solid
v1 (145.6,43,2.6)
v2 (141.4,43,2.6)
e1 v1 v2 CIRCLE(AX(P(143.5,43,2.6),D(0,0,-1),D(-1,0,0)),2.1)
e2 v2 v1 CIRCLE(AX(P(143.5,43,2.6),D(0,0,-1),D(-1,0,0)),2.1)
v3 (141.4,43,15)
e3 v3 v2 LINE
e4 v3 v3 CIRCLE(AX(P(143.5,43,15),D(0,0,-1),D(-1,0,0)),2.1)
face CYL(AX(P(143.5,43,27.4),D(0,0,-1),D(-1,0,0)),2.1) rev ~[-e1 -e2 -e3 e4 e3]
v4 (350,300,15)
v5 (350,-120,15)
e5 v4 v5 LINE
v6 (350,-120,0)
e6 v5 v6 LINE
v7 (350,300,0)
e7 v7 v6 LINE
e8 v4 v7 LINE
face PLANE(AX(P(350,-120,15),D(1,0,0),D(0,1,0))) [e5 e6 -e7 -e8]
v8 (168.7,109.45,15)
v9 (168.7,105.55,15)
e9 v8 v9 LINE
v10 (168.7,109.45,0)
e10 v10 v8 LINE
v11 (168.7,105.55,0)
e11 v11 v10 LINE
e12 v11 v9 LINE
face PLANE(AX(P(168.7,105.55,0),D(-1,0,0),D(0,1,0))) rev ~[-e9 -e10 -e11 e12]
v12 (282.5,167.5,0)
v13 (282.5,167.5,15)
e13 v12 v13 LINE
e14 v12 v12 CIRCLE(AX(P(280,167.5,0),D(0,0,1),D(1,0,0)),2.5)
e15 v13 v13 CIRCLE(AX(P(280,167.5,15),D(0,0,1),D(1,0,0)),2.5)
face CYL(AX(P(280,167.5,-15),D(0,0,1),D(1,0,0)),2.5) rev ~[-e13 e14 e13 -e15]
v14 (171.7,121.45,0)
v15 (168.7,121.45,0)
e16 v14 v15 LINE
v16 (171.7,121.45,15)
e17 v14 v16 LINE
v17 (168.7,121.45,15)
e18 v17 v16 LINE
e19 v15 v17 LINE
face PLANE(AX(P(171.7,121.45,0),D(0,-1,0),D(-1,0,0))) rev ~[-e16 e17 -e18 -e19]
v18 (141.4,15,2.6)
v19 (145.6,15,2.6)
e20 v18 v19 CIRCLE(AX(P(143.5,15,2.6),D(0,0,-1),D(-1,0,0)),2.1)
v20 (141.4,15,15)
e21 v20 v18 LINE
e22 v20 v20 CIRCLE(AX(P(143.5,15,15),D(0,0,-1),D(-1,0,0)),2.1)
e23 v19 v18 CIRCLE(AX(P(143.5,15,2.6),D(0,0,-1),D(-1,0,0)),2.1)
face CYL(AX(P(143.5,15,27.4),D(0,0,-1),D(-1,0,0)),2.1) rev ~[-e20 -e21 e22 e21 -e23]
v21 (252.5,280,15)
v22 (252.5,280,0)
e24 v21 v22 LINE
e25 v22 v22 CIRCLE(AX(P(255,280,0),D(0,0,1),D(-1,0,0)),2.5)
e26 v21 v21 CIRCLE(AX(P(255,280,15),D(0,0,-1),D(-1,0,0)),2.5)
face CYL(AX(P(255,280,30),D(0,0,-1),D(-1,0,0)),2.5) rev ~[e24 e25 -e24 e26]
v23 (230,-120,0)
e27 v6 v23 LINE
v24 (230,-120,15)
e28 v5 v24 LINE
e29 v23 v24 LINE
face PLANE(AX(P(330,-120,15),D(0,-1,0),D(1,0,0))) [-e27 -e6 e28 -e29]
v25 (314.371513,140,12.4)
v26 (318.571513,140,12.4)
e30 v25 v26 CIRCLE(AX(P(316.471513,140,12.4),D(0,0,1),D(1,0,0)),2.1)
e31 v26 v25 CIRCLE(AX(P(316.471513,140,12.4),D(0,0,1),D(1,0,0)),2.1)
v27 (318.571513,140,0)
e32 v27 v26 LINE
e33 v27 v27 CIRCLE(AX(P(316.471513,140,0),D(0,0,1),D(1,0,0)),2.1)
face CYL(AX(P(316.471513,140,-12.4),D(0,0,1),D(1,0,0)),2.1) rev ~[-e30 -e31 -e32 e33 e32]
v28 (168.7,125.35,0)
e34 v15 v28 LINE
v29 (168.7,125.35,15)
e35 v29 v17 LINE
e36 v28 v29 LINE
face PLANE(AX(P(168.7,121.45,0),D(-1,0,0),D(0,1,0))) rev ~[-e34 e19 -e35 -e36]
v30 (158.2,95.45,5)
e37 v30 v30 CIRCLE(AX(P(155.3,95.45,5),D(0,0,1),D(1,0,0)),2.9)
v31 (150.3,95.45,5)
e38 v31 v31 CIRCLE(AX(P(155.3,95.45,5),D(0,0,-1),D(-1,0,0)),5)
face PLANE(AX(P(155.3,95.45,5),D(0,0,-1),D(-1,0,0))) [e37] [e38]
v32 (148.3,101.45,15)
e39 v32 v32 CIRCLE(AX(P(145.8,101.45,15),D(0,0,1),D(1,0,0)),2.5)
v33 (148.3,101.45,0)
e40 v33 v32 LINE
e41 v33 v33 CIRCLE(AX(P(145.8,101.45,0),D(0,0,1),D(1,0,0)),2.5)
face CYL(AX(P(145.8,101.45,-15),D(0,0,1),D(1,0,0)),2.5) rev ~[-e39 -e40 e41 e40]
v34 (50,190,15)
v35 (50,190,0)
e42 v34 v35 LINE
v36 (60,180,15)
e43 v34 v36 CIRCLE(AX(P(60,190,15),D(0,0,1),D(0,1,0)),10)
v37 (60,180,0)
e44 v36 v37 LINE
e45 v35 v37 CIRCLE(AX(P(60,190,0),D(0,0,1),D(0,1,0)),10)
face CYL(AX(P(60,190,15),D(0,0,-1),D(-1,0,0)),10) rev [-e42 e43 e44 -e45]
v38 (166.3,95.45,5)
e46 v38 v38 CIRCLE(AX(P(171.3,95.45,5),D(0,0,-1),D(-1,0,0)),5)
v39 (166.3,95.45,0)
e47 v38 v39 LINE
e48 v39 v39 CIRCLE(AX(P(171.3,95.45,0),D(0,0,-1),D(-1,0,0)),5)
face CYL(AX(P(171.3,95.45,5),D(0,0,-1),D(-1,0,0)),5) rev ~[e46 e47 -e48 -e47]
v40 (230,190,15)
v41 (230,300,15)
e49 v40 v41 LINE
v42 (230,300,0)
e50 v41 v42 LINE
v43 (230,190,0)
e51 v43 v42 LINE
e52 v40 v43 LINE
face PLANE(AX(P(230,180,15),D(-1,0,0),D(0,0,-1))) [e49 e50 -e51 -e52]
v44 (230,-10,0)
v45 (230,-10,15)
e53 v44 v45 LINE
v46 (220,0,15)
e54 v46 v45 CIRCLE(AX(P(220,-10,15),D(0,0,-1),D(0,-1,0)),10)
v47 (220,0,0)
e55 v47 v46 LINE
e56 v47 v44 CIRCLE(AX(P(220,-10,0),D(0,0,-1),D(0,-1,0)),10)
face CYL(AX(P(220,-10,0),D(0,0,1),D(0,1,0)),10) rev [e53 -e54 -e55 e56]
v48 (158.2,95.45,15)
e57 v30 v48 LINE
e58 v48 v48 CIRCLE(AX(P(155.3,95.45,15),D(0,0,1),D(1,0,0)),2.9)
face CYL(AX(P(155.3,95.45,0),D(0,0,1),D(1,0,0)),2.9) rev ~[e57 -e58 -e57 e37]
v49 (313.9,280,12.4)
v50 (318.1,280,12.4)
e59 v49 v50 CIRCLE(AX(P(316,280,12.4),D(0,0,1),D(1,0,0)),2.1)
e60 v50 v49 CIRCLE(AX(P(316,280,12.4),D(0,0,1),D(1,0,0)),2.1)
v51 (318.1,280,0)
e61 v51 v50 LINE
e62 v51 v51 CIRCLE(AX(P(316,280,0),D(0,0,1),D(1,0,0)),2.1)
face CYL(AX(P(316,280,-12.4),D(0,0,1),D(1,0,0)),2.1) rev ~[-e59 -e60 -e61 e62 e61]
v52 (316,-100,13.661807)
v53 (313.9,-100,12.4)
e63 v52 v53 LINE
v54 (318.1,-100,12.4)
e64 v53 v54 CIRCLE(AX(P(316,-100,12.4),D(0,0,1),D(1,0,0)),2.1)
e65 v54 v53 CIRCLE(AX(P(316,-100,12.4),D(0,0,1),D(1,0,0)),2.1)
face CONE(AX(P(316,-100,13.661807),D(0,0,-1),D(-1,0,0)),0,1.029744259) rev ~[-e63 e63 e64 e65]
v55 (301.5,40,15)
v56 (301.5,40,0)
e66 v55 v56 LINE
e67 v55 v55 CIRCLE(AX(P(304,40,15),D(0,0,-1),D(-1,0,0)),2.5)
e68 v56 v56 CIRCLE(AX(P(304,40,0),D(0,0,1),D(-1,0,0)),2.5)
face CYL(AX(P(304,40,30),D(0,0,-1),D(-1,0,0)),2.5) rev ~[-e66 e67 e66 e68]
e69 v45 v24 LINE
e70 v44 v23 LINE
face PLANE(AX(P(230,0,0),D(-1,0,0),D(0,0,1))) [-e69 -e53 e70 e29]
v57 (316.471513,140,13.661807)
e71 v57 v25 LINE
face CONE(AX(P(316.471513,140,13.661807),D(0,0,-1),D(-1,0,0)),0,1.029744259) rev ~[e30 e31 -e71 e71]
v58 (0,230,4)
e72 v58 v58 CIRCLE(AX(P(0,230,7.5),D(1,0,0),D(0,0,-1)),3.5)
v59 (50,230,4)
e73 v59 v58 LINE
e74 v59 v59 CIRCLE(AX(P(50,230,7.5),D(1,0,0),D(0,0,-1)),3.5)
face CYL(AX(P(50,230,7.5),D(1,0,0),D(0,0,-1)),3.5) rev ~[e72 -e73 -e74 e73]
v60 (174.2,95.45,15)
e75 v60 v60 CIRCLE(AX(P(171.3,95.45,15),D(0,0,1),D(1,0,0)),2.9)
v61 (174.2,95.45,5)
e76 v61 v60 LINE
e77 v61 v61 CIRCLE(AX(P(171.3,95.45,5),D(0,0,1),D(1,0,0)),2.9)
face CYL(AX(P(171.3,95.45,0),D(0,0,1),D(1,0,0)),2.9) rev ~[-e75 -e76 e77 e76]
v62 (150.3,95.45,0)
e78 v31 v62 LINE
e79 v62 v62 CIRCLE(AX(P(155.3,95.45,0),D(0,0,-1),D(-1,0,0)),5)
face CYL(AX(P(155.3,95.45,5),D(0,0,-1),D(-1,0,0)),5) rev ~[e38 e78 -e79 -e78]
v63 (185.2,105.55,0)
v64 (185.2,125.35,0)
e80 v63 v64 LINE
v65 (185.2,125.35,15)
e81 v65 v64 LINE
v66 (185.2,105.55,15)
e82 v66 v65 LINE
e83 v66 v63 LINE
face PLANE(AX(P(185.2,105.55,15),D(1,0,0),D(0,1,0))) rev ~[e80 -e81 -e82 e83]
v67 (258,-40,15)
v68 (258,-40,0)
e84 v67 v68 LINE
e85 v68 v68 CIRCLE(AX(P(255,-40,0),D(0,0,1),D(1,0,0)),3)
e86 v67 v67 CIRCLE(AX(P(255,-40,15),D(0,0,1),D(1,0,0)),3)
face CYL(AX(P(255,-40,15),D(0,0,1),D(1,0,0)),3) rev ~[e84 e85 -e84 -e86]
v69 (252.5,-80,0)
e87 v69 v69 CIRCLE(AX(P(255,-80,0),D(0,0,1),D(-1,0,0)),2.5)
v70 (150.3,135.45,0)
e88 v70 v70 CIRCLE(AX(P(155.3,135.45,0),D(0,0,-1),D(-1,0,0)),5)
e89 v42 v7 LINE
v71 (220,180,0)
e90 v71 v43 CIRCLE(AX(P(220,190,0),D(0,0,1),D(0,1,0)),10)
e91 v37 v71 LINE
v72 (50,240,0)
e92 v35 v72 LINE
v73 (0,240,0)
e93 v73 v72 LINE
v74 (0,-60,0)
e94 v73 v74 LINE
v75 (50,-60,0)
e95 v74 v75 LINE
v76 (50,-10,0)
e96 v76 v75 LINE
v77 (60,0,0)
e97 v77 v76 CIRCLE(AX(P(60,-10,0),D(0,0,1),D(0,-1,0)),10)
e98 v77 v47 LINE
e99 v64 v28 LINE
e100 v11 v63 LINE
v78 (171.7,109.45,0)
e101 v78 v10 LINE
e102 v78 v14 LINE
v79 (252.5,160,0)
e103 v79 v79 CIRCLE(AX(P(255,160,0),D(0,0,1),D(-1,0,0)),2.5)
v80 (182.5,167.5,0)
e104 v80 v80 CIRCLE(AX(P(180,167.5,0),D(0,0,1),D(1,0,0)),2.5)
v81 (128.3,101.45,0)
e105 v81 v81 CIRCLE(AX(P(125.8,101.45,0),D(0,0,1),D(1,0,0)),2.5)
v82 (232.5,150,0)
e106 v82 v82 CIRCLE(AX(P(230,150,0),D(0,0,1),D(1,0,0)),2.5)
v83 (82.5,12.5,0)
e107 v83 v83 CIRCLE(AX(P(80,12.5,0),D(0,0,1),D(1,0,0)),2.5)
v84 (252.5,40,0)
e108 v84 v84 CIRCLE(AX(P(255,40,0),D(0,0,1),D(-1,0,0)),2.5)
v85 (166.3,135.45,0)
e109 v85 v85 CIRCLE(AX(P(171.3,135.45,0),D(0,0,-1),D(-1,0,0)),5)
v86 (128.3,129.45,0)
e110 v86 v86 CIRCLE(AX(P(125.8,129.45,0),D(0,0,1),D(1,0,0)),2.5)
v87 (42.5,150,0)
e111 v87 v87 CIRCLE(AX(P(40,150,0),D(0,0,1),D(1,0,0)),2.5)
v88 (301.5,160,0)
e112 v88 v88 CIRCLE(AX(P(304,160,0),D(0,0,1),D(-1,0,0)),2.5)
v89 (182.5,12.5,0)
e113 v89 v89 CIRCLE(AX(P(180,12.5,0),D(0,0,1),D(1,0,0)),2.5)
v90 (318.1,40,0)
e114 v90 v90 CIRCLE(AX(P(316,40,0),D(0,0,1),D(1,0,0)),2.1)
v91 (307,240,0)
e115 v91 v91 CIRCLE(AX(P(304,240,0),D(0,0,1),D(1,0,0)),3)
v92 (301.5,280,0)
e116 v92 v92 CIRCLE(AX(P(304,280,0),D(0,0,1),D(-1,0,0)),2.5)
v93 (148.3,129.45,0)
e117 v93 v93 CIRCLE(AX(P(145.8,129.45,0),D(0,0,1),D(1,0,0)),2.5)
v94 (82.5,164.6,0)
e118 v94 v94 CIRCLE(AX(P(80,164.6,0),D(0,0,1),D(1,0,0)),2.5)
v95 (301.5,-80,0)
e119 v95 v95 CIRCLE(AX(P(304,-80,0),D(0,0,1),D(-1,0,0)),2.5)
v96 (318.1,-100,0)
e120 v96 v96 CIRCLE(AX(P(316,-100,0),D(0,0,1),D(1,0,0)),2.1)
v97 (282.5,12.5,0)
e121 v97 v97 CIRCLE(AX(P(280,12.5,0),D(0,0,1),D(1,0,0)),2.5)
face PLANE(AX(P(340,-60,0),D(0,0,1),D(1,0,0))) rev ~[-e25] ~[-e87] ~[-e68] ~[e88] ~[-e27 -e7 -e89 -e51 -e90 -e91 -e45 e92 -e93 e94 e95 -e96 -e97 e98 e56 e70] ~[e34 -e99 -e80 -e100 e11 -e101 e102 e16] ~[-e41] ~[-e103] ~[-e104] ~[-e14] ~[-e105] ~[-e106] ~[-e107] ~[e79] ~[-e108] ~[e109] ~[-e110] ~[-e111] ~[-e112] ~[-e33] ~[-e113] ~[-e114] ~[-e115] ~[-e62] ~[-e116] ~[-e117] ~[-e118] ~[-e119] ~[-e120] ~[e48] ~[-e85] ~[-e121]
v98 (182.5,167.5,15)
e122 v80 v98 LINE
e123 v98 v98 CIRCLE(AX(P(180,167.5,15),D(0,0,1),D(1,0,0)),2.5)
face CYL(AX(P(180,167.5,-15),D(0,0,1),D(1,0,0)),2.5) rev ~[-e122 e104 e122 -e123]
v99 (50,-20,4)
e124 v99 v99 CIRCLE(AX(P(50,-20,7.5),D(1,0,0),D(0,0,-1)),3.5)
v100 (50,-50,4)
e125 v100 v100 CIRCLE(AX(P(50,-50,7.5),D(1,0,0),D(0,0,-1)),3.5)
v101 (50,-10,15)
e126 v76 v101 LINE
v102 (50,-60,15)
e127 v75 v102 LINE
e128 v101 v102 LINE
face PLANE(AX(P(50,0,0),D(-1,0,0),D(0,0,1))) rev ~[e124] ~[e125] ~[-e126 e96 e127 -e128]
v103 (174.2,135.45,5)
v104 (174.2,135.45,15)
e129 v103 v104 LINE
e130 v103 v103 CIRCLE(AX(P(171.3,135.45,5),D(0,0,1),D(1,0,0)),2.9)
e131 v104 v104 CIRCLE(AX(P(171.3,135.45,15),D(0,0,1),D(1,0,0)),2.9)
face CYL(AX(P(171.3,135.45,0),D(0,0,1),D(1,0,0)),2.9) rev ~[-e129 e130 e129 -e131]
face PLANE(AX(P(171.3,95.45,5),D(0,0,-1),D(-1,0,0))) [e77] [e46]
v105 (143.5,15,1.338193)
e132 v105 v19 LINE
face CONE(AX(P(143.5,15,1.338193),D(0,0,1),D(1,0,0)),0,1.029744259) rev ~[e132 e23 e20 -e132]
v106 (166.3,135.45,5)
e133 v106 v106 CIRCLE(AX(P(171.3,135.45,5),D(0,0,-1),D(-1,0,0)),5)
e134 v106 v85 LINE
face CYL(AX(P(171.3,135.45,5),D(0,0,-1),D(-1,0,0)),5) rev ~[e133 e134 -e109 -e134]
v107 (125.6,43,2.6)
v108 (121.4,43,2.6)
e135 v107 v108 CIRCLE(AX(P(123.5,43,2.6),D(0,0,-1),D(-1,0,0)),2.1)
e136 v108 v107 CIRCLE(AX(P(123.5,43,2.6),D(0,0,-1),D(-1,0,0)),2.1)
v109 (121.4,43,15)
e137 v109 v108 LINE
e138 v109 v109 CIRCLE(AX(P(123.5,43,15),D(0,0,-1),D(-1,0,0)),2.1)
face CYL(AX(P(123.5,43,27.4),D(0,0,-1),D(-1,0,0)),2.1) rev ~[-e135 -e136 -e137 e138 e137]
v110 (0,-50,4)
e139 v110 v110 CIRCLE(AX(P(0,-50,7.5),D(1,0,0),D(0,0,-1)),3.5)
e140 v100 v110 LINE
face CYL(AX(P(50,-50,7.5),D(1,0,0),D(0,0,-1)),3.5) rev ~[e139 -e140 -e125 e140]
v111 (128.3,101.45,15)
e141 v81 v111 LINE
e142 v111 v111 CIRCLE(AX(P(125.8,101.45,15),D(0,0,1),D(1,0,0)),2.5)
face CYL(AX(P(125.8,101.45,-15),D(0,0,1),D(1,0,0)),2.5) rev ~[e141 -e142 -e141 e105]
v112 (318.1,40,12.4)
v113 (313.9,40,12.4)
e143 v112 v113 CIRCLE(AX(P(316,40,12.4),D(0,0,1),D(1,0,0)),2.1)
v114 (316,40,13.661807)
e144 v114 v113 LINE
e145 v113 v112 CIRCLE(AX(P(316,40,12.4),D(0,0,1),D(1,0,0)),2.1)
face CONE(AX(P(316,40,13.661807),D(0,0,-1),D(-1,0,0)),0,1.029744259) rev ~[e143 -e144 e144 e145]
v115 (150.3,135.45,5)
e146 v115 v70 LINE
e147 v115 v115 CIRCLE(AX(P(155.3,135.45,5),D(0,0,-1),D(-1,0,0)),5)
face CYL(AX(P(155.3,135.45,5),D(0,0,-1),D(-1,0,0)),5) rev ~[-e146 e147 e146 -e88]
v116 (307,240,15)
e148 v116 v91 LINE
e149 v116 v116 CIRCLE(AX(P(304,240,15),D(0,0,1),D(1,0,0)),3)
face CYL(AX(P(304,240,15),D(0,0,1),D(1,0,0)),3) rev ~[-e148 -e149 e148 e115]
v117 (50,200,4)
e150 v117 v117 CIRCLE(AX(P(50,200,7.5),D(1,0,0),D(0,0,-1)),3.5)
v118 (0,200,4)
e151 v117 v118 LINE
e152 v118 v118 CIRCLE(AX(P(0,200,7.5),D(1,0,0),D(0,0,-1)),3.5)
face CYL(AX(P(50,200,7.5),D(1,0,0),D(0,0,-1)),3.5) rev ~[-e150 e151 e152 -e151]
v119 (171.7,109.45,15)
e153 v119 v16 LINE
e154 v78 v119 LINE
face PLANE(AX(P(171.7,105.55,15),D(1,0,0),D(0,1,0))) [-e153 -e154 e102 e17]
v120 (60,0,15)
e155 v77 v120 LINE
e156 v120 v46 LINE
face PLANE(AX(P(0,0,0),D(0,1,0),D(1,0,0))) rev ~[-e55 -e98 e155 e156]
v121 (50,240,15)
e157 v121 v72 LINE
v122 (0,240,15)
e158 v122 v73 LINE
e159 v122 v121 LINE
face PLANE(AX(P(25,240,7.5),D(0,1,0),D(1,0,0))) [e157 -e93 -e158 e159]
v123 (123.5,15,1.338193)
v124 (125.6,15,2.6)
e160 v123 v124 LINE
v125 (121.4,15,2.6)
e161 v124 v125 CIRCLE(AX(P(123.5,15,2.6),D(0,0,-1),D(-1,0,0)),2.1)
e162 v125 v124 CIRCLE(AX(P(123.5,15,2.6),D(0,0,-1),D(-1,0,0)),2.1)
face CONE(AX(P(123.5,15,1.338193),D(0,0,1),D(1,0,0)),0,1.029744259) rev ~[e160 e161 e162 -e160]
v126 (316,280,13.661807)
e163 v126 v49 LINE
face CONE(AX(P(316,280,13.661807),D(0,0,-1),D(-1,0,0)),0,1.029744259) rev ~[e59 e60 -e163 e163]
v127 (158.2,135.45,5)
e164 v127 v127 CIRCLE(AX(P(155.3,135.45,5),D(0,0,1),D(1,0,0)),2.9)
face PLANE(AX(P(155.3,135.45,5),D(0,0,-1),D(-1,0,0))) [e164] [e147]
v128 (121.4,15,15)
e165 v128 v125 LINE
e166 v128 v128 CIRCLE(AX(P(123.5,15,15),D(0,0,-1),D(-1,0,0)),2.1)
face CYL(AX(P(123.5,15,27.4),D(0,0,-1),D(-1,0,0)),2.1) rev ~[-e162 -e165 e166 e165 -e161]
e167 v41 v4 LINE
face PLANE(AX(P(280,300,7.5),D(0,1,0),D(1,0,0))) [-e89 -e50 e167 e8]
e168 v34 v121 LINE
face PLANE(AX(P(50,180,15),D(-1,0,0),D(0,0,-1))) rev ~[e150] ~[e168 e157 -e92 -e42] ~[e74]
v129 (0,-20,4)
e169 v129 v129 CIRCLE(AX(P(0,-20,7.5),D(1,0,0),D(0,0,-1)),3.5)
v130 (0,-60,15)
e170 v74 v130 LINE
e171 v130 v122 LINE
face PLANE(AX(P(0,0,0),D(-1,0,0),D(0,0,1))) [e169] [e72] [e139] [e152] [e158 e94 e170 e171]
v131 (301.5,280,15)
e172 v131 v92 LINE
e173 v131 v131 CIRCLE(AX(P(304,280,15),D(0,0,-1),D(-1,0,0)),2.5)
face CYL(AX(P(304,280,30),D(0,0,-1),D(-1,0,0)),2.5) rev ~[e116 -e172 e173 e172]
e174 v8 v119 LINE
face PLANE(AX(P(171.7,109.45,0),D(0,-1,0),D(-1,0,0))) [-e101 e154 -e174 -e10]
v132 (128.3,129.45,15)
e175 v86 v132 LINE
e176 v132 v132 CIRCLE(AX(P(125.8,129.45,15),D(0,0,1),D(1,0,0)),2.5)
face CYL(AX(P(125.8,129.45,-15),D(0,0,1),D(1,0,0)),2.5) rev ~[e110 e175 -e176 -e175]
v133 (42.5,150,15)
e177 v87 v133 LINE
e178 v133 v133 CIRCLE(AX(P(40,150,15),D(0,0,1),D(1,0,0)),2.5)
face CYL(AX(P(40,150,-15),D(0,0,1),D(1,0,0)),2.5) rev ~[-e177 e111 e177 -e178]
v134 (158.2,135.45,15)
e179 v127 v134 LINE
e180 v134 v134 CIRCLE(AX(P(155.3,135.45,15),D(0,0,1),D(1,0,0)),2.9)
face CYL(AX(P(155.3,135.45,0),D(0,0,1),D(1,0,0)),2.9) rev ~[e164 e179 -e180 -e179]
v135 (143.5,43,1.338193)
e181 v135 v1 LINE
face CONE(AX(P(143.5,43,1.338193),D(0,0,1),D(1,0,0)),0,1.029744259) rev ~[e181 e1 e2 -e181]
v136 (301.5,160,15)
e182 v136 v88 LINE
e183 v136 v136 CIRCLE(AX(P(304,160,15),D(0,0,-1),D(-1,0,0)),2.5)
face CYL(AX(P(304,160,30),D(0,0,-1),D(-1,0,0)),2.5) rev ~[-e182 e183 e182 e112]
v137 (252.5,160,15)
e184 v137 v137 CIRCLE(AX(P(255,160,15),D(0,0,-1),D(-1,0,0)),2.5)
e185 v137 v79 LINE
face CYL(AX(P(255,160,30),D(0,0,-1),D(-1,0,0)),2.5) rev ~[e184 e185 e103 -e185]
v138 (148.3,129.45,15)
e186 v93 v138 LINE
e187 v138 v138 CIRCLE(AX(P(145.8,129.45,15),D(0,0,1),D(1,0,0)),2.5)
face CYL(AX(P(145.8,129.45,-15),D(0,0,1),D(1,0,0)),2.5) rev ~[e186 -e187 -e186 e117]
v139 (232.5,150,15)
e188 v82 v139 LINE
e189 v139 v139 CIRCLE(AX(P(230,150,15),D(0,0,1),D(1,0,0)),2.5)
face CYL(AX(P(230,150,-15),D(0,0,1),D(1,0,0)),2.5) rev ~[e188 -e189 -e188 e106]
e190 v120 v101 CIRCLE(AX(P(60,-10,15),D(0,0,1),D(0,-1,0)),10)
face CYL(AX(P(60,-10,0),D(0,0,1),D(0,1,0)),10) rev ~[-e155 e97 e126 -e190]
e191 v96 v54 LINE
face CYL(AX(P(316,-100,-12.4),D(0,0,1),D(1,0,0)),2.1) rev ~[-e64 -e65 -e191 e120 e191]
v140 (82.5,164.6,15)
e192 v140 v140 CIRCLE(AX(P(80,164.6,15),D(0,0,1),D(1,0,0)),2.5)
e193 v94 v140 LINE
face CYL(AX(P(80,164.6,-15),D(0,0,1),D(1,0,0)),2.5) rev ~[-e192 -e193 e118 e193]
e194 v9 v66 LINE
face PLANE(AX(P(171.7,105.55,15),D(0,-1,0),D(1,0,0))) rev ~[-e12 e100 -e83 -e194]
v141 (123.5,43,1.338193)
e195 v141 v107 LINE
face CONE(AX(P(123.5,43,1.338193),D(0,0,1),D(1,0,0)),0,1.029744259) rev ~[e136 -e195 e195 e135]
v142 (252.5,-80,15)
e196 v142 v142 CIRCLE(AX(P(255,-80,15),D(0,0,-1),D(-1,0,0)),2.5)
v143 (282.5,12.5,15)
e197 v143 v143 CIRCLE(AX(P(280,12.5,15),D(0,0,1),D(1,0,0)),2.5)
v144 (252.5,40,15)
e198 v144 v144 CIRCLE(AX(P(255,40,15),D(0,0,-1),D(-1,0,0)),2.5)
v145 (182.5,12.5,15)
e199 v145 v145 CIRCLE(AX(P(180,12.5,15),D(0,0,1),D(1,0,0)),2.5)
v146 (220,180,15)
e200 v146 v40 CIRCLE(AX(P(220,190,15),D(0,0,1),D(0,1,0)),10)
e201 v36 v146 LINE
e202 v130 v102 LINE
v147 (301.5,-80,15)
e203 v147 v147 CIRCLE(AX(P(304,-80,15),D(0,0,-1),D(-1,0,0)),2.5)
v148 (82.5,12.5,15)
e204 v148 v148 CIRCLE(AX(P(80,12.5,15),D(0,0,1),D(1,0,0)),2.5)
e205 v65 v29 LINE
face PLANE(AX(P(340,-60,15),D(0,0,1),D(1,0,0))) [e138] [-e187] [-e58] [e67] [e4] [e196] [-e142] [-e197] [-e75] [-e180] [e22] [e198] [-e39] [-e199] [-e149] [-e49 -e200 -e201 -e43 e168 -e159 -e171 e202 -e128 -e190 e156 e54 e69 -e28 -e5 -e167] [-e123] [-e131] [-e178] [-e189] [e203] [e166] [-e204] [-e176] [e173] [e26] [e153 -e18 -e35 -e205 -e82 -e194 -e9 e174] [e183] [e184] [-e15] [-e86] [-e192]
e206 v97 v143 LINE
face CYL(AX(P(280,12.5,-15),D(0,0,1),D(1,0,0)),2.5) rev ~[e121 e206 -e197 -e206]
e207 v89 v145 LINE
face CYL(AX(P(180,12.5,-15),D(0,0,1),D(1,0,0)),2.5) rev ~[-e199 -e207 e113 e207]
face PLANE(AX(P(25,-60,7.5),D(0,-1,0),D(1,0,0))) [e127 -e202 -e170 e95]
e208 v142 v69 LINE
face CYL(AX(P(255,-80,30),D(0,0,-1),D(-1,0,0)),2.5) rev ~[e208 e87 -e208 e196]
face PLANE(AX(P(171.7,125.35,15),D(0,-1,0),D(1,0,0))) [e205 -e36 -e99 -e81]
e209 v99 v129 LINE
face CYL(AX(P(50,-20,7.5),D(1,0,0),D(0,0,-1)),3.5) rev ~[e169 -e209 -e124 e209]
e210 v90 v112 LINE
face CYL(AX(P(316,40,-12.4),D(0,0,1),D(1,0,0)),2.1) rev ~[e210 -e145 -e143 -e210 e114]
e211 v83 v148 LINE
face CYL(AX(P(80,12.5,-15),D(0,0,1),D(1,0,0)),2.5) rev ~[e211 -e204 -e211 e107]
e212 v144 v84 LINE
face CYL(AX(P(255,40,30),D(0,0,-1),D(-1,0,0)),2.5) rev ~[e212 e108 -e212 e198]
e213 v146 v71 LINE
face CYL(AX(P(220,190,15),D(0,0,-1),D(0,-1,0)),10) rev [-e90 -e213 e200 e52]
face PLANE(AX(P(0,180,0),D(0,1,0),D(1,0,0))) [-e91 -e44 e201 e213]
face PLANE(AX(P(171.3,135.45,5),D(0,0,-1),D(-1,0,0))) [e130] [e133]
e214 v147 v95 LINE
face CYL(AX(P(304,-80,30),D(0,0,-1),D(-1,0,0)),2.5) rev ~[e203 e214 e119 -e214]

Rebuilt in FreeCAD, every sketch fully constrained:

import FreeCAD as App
import Part
import Sketcher
Q = App.Units.Quantity


def edges_at(feature, points):
    """Names of the edges that pass closest to the given points."""
    edges = feature.Shape.Edges
    near = lambda p: min(range(len(edges)), key=lambda i: edges[i].distToShape(Part.Vertex(*p))[0])
    return sorted({f"Edge{near(p) + 1}" for p in points})


def add_polygon(sketch, points):
    """Adds a closed chain of lines whose ends are joined by coincident constraints."""
    first, n = sketch.GeometryCount, len(points)
    for a, b in zip(points, points[1:] + points[:1]):
        sketch.addGeometry(Part.LineSegment(App.Vector(*a, 0), App.Vector(*b, 0)), False)
    for i in range(n):
        sketch.addConstraint(Sketcher.Constraint("Coincident", first + i, 2, first + (i + 1) % n, 1))

doc = App.newDocument("Part")
body = doc.addObject("PartDesign::Body", "Body")

# Sketch on XY plane
sketch1 = body.newObject("Sketcher::SketchObject", "Sketch")
sketch1.AttachmentSupport = (doc.getObject("XY_Plane"), [""])
sketch1.MapMode = "FlatFace"
add_polygon(sketch1, [(0, 180), (0, 0), (391, 0), (391, 180)])  # lines 0-3
sketch1.addConstraint([
    Sketcher.Constraint("Vertical", 0),
    Sketcher.Constraint("Horizontal", 1),
    Sketcher.Constraint("Vertical", 2),
    Sketcher.Constraint("Horizontal", 3),
    Sketcher.Constraint("Coincident", 0, 2, -1, 1),
    Sketcher.Constraint("DistanceX", 1, 1, 1, 2, Q("391 mm")),
    Sketcher.Constraint("DistanceY", 0, 2, 0, 1, Q("180 mm")),
])
pad1 = body.newObject("PartDesign::Pad", "Pad")
pad1.Profile = sketch1
pad1.Length = 15

# Sketch on XY plane
sketch2 = body.newObject("Sketcher::SketchObject", "Sketch001")
sketch2.AttachmentSupport = (doc.getObject("XY_Plane"), [""])
sketch2.MapMode = "FlatFace"
sketch2.AttachmentOffset = App.Placement(App.Vector(0, 0, 15), App.Rotation())
add_polygon(sketch2, [(173.7, 123.35), (173.7, 107.55), (183.2, 107.55), (183.2, 123.35)])  # lines 0-3
sketch2.addConstraint([
    Sketcher.Constraint("Vertical", 0),
    Sketcher.Constraint("Horizontal", 1),
    Sketcher.Constraint("Vertical", 2),
    Sketcher.Constraint("Horizontal", 3),
    Sketcher.Constraint("DistanceX", 1, 1, 1, 2, Q("9.5 mm")),
    Sketcher.Constraint("DistanceY", 0, 2, 0, 1, Q("15.8 mm")),
    Sketcher.Constraint("DistanceX", -1, 1, 0, 2, Q("173.7 mm")),
    Sketcher.Constraint("DistanceY", -1, 1, 0, 2, Q("107.55 mm")),
])
pocket1 = body.newObject("PartDesign::Pocket", "Pocket")
pocket1.Profile = sketch2
pocket1.Type = "ThroughAll"

# Sketch on XY plane
sketch3 = body.newObject("Sketcher::SketchObject", "Sketch002")
sketch3.AttachmentSupport = (doc.getObject("XY_Plane"), [""])
sketch3.MapMode = "FlatFace"
sketch3.AttachmentOffset = App.Placement(App.Vector(0, 0, 15), App.Rotation())
add_polygon(sketch3, [(171.7, 125.35), (171.7, 105.55), (185.2, 105.55), (185.2, 125.35)])  # lines 0-3
sketch3.addConstraint([
    Sketcher.Constraint("Vertical", 0),
    Sketcher.Constraint("Horizontal", 1),
    Sketcher.Constraint("Vertical", 2),
    Sketcher.Constraint("Horizontal", 3),
    Sketcher.Constraint("DistanceX", 1, 1, 1, 2, Q("13.5 mm")),
    Sketcher.Constraint("DistanceY", 0, 2, 0, 1, Q("19.8 mm")),
    Sketcher.Constraint("DistanceX", -1, 1, 0, 2, Q("171.7 mm")),
    Sketcher.Constraint("DistanceY", -1, 1, 0, 2, Q("105.55 mm")),
])
pocket2 = body.newObject("PartDesign::Pocket", "Pocket001")
pocket2.Profile = sketch3
pocket2.Type = "ThroughAll"

# Sketch on XZ plane
sketch4 = body.newObject("Sketcher::SketchObject", "Sketch003")
sketch4.AttachmentSupport = (doc.getObject("XZ_Plane"), [""])
sketch4.MapMode = "FlatFace"
sketch4.AttachmentOffset = App.Placement(App.Vector(0, 0, -180), App.Rotation())
add_polygon(sketch4, [(230, 0), (230, 15), (330, 15), (330, 0)])  # lines 0-3
sketch4.addConstraint([
    Sketcher.Constraint("Vertical", 0),
    Sketcher.Constraint("Horizontal", 1),
    Sketcher.Constraint("Vertical", 2),
    Sketcher.Constraint("Horizontal", 3),
    Sketcher.Constraint("PointOnObject", 2, 2, -1),
    Sketcher.Constraint("DistanceX", 1, 1, 1, 2, Q("100 mm")),
    Sketcher.Constraint("DistanceY", 0, 1, 0, 2, Q("15 mm")),
    Sketcher.Constraint("DistanceX", -1, 1, 0, 2, Q("230 mm")),
])
pad2 = body.newObject("PartDesign::Pad", "Pad001")
pad2.Profile = sketch4
pad2.Length = 120
pad2.Reversed = True

# Sketch on XZ plane
sketch5 = body.newObject("Sketcher::SketchObject", "Sketch004")
sketch5.AttachmentSupport = (doc.getObject("XZ_Plane"), [""])
sketch5.MapMode = "FlatFace"
add_polygon(sketch5, [(230, 15), (230, 0), (330, 0), (330, 15)])  # lines 0-3
sketch5.addConstraint([
    Sketcher.Constraint("Vertical", 0),
    Sketcher.Constraint("Horizontal", 1),
    Sketcher.Constraint("Vertical", 2),
    Sketcher.Constraint("Horizontal", 3),
    Sketcher.Constraint("PointOnObject", 0, 2, -1),
    Sketcher.Constraint("DistanceX", 1, 1, 1, 2, Q("100 mm")),
    Sketcher.Constraint("DistanceY", 0, 2, 0, 1, Q("15 mm")),
    Sketcher.Constraint("DistanceX", -1, 1, 0, 2, Q("230 mm")),
])
pad3 = body.newObject("PartDesign::Pad", "Pad002")
pad3.Profile = sketch5
pad3.Length = 120
doc.recompute()

fillet = body.newObject("PartDesign::Fillet", "Fillet")
fillet.Base = (pad3, edges_at(pad3, [(230, 0, 7.5), (230, 180, 7.5)]))
fillet.Radius = 10

# Sketch on XY plane
sketch6 = body.newObject("Sketcher::SketchObject", "Sketch005")
sketch6.AttachmentSupport = (doc.getObject("XY_Plane"), [""])
sketch6.MapMode = "FlatFace"
sketch6.AttachmentOffset = App.Placement(App.Vector(0, 0, 15), App.Rotation())
add_polygon(sketch6, [(350, 180), (350, 0), (391, 0), (391, 180)])  # lines 0-3
sketch6.addConstraint([
    Sketcher.Constraint("Vertical", 0),
    Sketcher.Constraint("Horizontal", 1),
    Sketcher.Constraint("Vertical", 2),
    Sketcher.Constraint("Horizontal", 3),
    Sketcher.Constraint("PointOnObject", 0, 2, -1),
    Sketcher.Constraint("DistanceX", 1, 1, 1, 2, Q("41 mm")),
    Sketcher.Constraint("DistanceY", 0, 2, 0, 1, Q("180 mm")),
    Sketcher.Constraint("DistanceX", -1, 1, 0, 2, Q("350 mm")),
])
pocket3 = body.newObject("PartDesign::Pocket", "Pocket002")
pocket3.Profile = sketch6
pocket3.Length = 120
doc.recompute()

fillet2 = body.newObject("PartDesign::Fillet", "Fillet001")
fillet2.Base = (pocket3, edges_at(pocket3, [(330, 0, 7.5), (330, 180, 7.5)]))
fillet2.Radius = 10

# Sketch on XZ plane
sketch7 = body.newObject("Sketcher::SketchObject", "Sketch006")
sketch7.AttachmentSupport = (doc.getObject("XZ_Plane"), [""])
sketch7.MapMode = "FlatFace"
sketch7.AttachmentOffset = App.Placement(App.Vector(0, 0, -180), App.Rotation())
add_polygon(sketch7, [(0, 0), (0, 15), (50, 15), (50, 0)])  # lines 0-3
sketch7.addConstraint([
    Sketcher.Constraint("Vertical", 0),
    Sketcher.Constraint("Horizontal", 1),
    Sketcher.Constraint("Vertical", 2),
    Sketcher.Constraint("Horizontal", 3),
    Sketcher.Constraint("Coincident", 3, 2, -1, 1),
    Sketcher.Constraint("DistanceX", 1, 1, 1, 2, Q("50 mm")),
    Sketcher.Constraint("DistanceY", 0, 1, 0, 2, Q("15 mm")),
])
pad4 = body.newObject("PartDesign::Pad", "Pad003")
pad4.Profile = sketch7
pad4.Length = 60
pad4.Reversed = True

# Sketch on XZ plane
sketch8 = body.newObject("Sketcher::SketchObject", "Sketch007")
sketch8.AttachmentSupport = (doc.getObject("XZ_Plane"), [""])
sketch8.MapMode = "FlatFace"
add_polygon(sketch8, [(0, 15), (0, 0), (50, 0), (50, 15)])  # lines 0-3
sketch8.addConstraint([
    Sketcher.Constraint("Vertical", 0),
    Sketcher.Constraint("Horizontal", 1),
    Sketcher.Constraint("Vertical", 2),
    Sketcher.Constraint("Horizontal", 3),
    Sketcher.Constraint("Coincident", 0, 2, -1, 1),
    Sketcher.Constraint("DistanceX", 1, 1, 1, 2, Q("50 mm")),
    Sketcher.Constraint("DistanceY", 0, 2, 0, 1, Q("15 mm")),
])
pad5 = body.newObject("PartDesign::Pad", "Pad004")
pad5.Profile = sketch8
pad5.Length = 60

# Sketch on XY plane
sketch9 = body.newObject("Sketcher::SketchObject", "Sketch008")
sketch9.AttachmentSupport = (doc.getObject("XY_Plane"), [""])
sketch9.MapMode = "FlatFace"
sketch9.AttachmentOffset = App.Placement(App.Vector(0, 0, 15), App.Rotation())
add_polygon(sketch9, [(330, 0), (330, -120), (350, -120), (350, 0)])  # lines 0-3
add_polygon(sketch9, [(330, 300), (330, 180), (350, 180), (350, 300)])  # lines 4-7
sketch9.addConstraint([
    Sketcher.Constraint("Vertical", 0),
    Sketcher.Constraint("Horizontal", 1),
    Sketcher.Constraint("Vertical", 2),
    Sketcher.Constraint("Horizontal", 3),
    Sketcher.Constraint("Vertical", 4),
    Sketcher.Constraint("Horizontal", 5),
    Sketcher.Constraint("Vertical", 6),
    Sketcher.Constraint("Horizontal", 7),
    Sketcher.Constraint("PointOnObject", 2, 2, -1),
    Sketcher.Constraint("Vertical", 3, 2, 4, 2),
    Sketcher.Constraint("Vertical", 2, 2, 5, 2),
    Sketcher.Constraint("Equal", 2, 4),
    Sketcher.Constraint("DistanceX", 1, 1, 1, 2, Q("20 mm")),
    Sketcher.Constraint("DistanceY", 0, 2, 0, 1, Q("120 mm")),
    Sketcher.Constraint("DistanceX", -1, 1, 0, 2, Q("330 mm")),
    Sketcher.Constraint("DistanceY", -1, 1, 4, 2, Q("180 mm")),
])
pad6 = body.newObject("PartDesign::Pad", "Pad005")
pad6.Profile = sketch9
pad6.Length = 15
pad6.Reversed = True
doc.recompute()

fillet3 = body.newObject("PartDesign::Fillet", "Fillet002")
fillet3.Base = (pad6, edges_at(pad6, [(50, 0, 7.5), (50, 180, 7.5)]))
fillet3.Radius = 10

# Sketch on XY plane
sketch10 = body.newObject("Sketcher::SketchObject", "Sketch009")
sketch10.AttachmentSupport = (doc.getObject("XY_Plane"), [""])
sketch10.MapMode = "FlatFace"
add_polygon(sketch10, [(171.7, 109.45), (171.7, 105.55), (168.7, 105.55), (168.7, 109.45)])  # lines 0-3
add_polygon(sketch10, [(171.7, 125.35), (171.7, 121.45), (168.7, 121.45), (168.7, 125.35)])  # lines 4-7
sketch10.addConstraint([
    Sketcher.Constraint("Vertical", 0),
    Sketcher.Constraint("Horizontal", 1),
    Sketcher.Constraint("Vertical", 2),
    Sketcher.Constraint("Horizontal", 3),
    Sketcher.Constraint("Vertical", 4),
    Sketcher.Constraint("Horizontal", 5),
    Sketcher.Constraint("Vertical", 6),
    Sketcher.Constraint("Horizontal", 7),
    Sketcher.Constraint("Vertical", 3, 2, 4, 2),
    Sketcher.Constraint("Vertical", 2, 2, 5, 2),
    Sketcher.Constraint("Equal", 2, 4),
    Sketcher.Constraint("DistanceX", 1, 2, 1, 1, Q("3 mm")),
    Sketcher.Constraint("DistanceY", 0, 2, 0, 1, Q("3.9 mm")),
    Sketcher.Constraint("DistanceY", 3, 2, 4, 2, Q("12 mm")),
    Sketcher.Constraint("DistanceX", -1, 1, 0, 2, Q("171.7 mm")),
    Sketcher.Constraint("DistanceY", -1, 1, 0, 2, Q("105.55 mm")),
])
pocket4 = body.newObject("PartDesign::Pocket", "Pocket003")
pocket4.Profile = sketch10
pocket4.Type = "ThroughAll"
pocket4.Reversed = True

# Sketch on YZ plane
sketch11 = body.newObject("Sketcher::SketchObject", "Sketch010")
sketch11.AttachmentSupport = (doc.getObject("YZ_Plane"), [""])
sketch11.MapMode = "FlatFace"
sketch11.AttachmentOffset = App.Placement(App.Vector(0, 0, 50), App.Rotation())
sketch11.addGeometry([
    Part.Circle(App.Vector(-50, 7.5, 0), App.Vector(0, 0, 1), 3.5),
    Part.Circle(App.Vector(-20, 7.5, 0), App.Vector(0, 0, 1), 3.5),
    Part.Circle(App.Vector(230, 7.5, 0), App.Vector(0, 0, 1), 3.5),
    Part.Circle(App.Vector(200, 7.5, 0), App.Vector(0, 0, 1), 3.5),
], False)
sketch11.addConstraint([
    Sketcher.Constraint("Equal", 0, 1),
    Sketcher.Constraint("Equal", 1, 2),
    Sketcher.Constraint("Equal", 2, 3),
    Sketcher.Constraint("Horizontal", 0, 3, 1, 3),
    Sketcher.Constraint("Horizontal", 1, 3, 2, 3),
    Sketcher.Constraint("Horizontal", 2, 3, 3, 3),
    Sketcher.Constraint("Diameter", 0, Q("7 mm")),
    Sketcher.Constraint("DistanceX", 0, 3, -1, 1, Q("50 mm")),
    Sketcher.Constraint("DistanceX", 1, 3, -1, 1, Q("20 mm")),
    Sketcher.Constraint("DistanceX", -1, 1, 2, 3, Q("230 mm")),
    Sketcher.Constraint("DistanceX", -1, 1, 3, 3, Q("200 mm")),
    Sketcher.Constraint("DistanceY", -1, 1, 0, 3, Q("7.5 mm")),
])
pocket5 = body.newObject("PartDesign::Pocket", "Pocket004")
pocket5.Profile = sketch11
pocket5.Type = "ThroughAll"

# Sketch on XY plane
sketch12 = body.newObject("Sketcher::SketchObject", "Sketch011")
sketch12.AttachmentSupport = (doc.getObject("XY_Plane"), [""])
sketch12.MapMode = "FlatFace"
sketch12.addGeometry([
    Part.Circle(App.Vector(316, 280, 0), App.Vector(0, 0, 1), 2.1),
    Part.Circle(App.Vector(316.471513, 140, 0), App.Vector(0, 0, 1), 2.1),
    Part.Circle(App.Vector(316, 40, 0), App.Vector(0, 0, 1), 2.1),
    Part.Circle(App.Vector(316, -100, 0), App.Vector(0, 0, 1), 2.1),
], False)
sketch12.addConstraint([
    Sketcher.Constraint("Equal", 0, 1),
    Sketcher.Constraint("Equal", 1, 2),
    Sketcher.Constraint("Equal", 2, 3),
    Sketcher.Constraint("Vertical", 0, 3, 2, 3),
    Sketcher.Constraint("Vertical", 2, 3, 3, 3),
    Sketcher.Constraint("Diameter", 0, Q("4.2 mm")),
    Sketcher.Constraint("DistanceX", -1, 1, 0, 3, Q("316 mm")),
    Sketcher.Constraint("DistanceY", -1, 1, 0, 3, Q("280 mm")),
    Sketcher.Constraint("DistanceY", -1, 1, 1, 3, Q("140 mm")),
    Sketcher.Constraint("DistanceY", -1, 1, 2, 3, Q("40 mm")),
    Sketcher.Constraint("DistanceY", 3, 3, -1, 1, Q("100 mm")),
    Sketcher.Constraint("DistanceX", -1, 1, 1, 3, Q("316.471513 mm")),
])
doc.recompute()
hole = body.newObject("PartDesign::Hole", "Hole")
hole.Profile = sketch12
hole.ThreadType = "None"
hole.Diameter = 4.2
hole.DepthType = "Dimension"
hole.Depth = 12.4
hole.DrillPoint = "Angled"
hole.DrillPointAngle = 118
hole.Reversed = True

# Sketch on XY plane
sketch13 = body.newObject("Sketcher::SketchObject", "Sketch012")
sketch13.AttachmentSupport = (doc.getObject("XY_Plane"), [""])
sketch13.MapMode = "FlatFace"
sketch13.addGeometry([
    Part.Circle(App.Vector(280, 167.5, 0), App.Vector(0, 0, 1), 2.5),  # 0
    Part.Circle(App.Vector(180, 167.5, 0), App.Vector(0, 0, 1), 2.5),  # 1
    Part.Circle(App.Vector(80, 164.6, 0), App.Vector(0, 0, 1), 2.5),  # 2
    Part.Circle(App.Vector(280, 12.5, 0), App.Vector(0, 0, 1), 2.5),  # 3
    Part.Circle(App.Vector(180, 12.5, 0), App.Vector(0, 0, 1), 2.5),  # 4
    Part.Circle(App.Vector(80, 12.5, 0), App.Vector(0, 0, 1), 2.5),  # 5
], False)
sketch13.addConstraint([
    Sketcher.Constraint("Equal", 0, 1),
    Sketcher.Constraint("Equal", 1, 2),
    Sketcher.Constraint("Equal", 2, 3),
    Sketcher.Constraint("Equal", 3, 4),
    Sketcher.Constraint("Equal", 4, 5),
    Sketcher.Constraint("Horizontal", 0, 3, 1, 3),
    Sketcher.Constraint("Horizontal", 3, 3, 4, 3),
    Sketcher.Constraint("Horizontal", 4, 3, 5, 3),
    Sketcher.Constraint("Vertical", 0, 3, 3, 3),
    Sketcher.Constraint("Vertical", 1, 3, 4, 3),
    Sketcher.Constraint("Vertical", 2, 3, 5, 3),
    Sketcher.Constraint("Diameter", 0, Q("5 mm")),
    Sketcher.Constraint("DistanceX", -1, 1, 0, 3, Q("280 mm")),
    Sketcher.Constraint("DistanceX", -1, 1, 1, 3, Q("180 mm")),
    Sketcher.Constraint("DistanceX", -1, 1, 2, 3, Q("80 mm")),
    Sketcher.Constraint("DistanceY", 3, 3, 0, 3, Q("155 mm")),
    Sketcher.Constraint("DistanceY", -1, 1, 0, 3, Q("167.5 mm")),
    Sketcher.Constraint("DistanceY", -1, 1, 2, 3, Q("164.6 mm")),
])
doc.recompute()
hole2 = body.newObject("PartDesign::Hole", "Hole001")
hole2.Profile = sketch13
hole2.ThreadType = "None"
hole2.Diameter = 5
hole2.DepthType = "Dimension"
hole2.Depth = 15
hole2.DrillPoint = "Angled"
hole2.DrillPointAngle = 118
hole2.Reversed = True

# Sketch on XY plane
sketch14 = body.newObject("Sketcher::SketchObject", "Sketch013")
sketch14.AttachmentSupport = (doc.getObject("XY_Plane"), [""])
sketch14.MapMode = "FlatFace"
sketch14.addGeometry([
    Part.Circle(App.Vector(125.8, 129.45, 0), App.Vector(0, 0, 1), 2.5),
    Part.Circle(App.Vector(145.8, 129.45, 0), App.Vector(0, 0, 1), 2.5),
    Part.Circle(App.Vector(145.8, 101.45, 0), App.Vector(0, 0, 1), 2.5),
    Part.Circle(App.Vector(125.8, 101.45, 0), App.Vector(0, 0, 1), 2.5),
], False)
sketch14.addConstraint([
    Sketcher.Constraint("Equal", 0, 1),
    Sketcher.Constraint("Equal", 1, 2),
    Sketcher.Constraint("Equal", 2, 3),
    Sketcher.Constraint("Horizontal", 0, 3, 1, 3),
    Sketcher.Constraint("Horizontal", 2, 3, 3, 3),
    Sketcher.Constraint("Vertical", 1, 3, 2, 3),
    Sketcher.Constraint("Vertical", 0, 3, 3, 3),
    Sketcher.Constraint("Diameter", 0, Q("5 mm")),
    Sketcher.Constraint("DistanceX", 0, 3, 1, 3, Q("20 mm")),
    Sketcher.Constraint("DistanceY", 2, 3, 1, 3, Q("28 mm")),
    Sketcher.Constraint("DistanceX", -1, 1, 0, 3, Q("125.8 mm")),
    Sketcher.Constraint("DistanceY", -1, 1, 0, 3, Q("129.45 mm")),
])
doc.recompute()
hole3 = body.newObject("PartDesign::Hole", "Hole002")
hole3.Profile = sketch14
hole3.ThreadType = "None"
hole3.Diameter = 5
hole3.DepthType = "Dimension"
hole3.Depth = 15
hole3.DrillPoint = "Angled"
hole3.DrillPointAngle = 118
hole3.Reversed = True

# Sketch on XY plane
sketch15 = body.newObject("Sketcher::SketchObject", "Sketch014")
sketch15.AttachmentSupport = (doc.getObject("XY_Plane"), [""])
sketch15.MapMode = "FlatFace"
sketch15.addGeometry([
    Part.Circle(App.Vector(171.3, 95.45, 0), App.Vector(0, 0, 1), 2.9),
    Part.Circle(App.Vector(155.3, 95.45, 0), App.Vector(0, 0, 1), 2.9),
    Part.Circle(App.Vector(171.3, 135.45, 0), App.Vector(0, 0, 1), 2.9),
    Part.Circle(App.Vector(155.3, 135.45, 0), App.Vector(0, 0, 1), 2.9),
], False)
sketch15.addConstraint([
    Sketcher.Constraint("Equal", 0, 1),
    Sketcher.Constraint("Equal", 1, 2),
    Sketcher.Constraint("Equal", 2, 3),
    Sketcher.Constraint("Horizontal", 0, 3, 1, 3),
    Sketcher.Constraint("Horizontal", 2, 3, 3, 3),
    Sketcher.Constraint("Vertical", 0, 3, 2, 3),
    Sketcher.Constraint("Vertical", 1, 3, 3, 3),
    Sketcher.Constraint("Diameter", 0, Q("5.8 mm")),
    Sketcher.Constraint("DistanceX", 1, 3, 0, 3, Q("16 mm")),
    Sketcher.Constraint("DistanceY", 0, 3, 2, 3, Q("40 mm")),
    Sketcher.Constraint("DistanceX", -1, 1, 0, 3, Q("171.3 mm")),
    Sketcher.Constraint("DistanceY", -1, 1, 0, 3, Q("95.45 mm")),
])
doc.recompute()
hole4 = body.newObject("PartDesign::Hole", "Hole003")
hole4.Profile = sketch15
hole4.ThreadType = "None"
hole4.Diameter = 5.8
hole4.DepthType = "ThroughAll"
hole4.HoleCutType = "Counterbore"
hole4.HoleCutDiameter = 10
hole4.HoleCutDepth = 5
hole4.Reversed = True

# Sketch on XY plane
sketch16 = body.newObject("Sketcher::SketchObject", "Sketch015")
sketch16.AttachmentSupport = (doc.getObject("XY_Plane"), [""])
sketch16.MapMode = "FlatFace"
sketch16.AttachmentOffset = App.Placement(App.Vector(0, 0, 15), App.Rotation())
sketch16.addGeometry([
    Part.Circle(App.Vector(304, 280, 0), App.Vector(0, 0, 1), 2.5),  # 0
    Part.Circle(App.Vector(255, 280, 0), App.Vector(0, 0, 1), 2.5),  # 1
    Part.Circle(App.Vector(255, 160, 0), App.Vector(0, 0, 1), 2.5),  # 2
    Part.Circle(App.Vector(304, 160, 0), App.Vector(0, 0, 1), 2.5),  # 3
    Part.Circle(App.Vector(304, -80, 0), App.Vector(0, 0, 1), 2.5),  # 4
    Part.Circle(App.Vector(255, -80, 0), App.Vector(0, 0, 1), 2.5),  # 5
    Part.Circle(App.Vector(255, 40, 0), App.Vector(0, 0, 1), 2.5),  # 6
    Part.Circle(App.Vector(304, 40, 0), App.Vector(0, 0, 1), 2.5),  # 7
], False)
sketch16.addConstraint([
    Sketcher.Constraint("Equal", 0, 1),
    Sketcher.Constraint("Equal", 1, 2),
    Sketcher.Constraint("Equal", 2, 3),
    Sketcher.Constraint("Equal", 3, 4),
    Sketcher.Constraint("Equal", 4, 5),
    Sketcher.Constraint("Equal", 5, 6),
    Sketcher.Constraint("Equal", 6, 7),
    Sketcher.Constraint("Horizontal", 0, 3, 1, 3),
    Sketcher.Constraint("Horizontal", 2, 3, 3, 3),
    Sketcher.Constraint("Horizontal", 4, 3, 5, 3),
    Sketcher.Constraint("Horizontal", 6, 3, 7, 3),
    Sketcher.Constraint("Vertical", 1, 3, 2, 3),
    Sketcher.Constraint("Vertical", 0, 3, 3, 3),
    Sketcher.Constraint("Vertical", 3, 3, 4, 3),
    Sketcher.Constraint("Vertical", 2, 3, 5, 3),
    Sketcher.Constraint("Vertical", 5, 3, 6, 3),
    Sketcher.Constraint("Vertical", 4, 3, 7, 3),
    Sketcher.Constraint("Diameter", 0, Q("5 mm")),
    Sketcher.Constraint("DistanceX", -1, 1, 0, 3, Q("304 mm")),
    Sketcher.Constraint("DistanceY", -1, 1, 0, 3, Q("280 mm")),
    Sketcher.Constraint("DistanceX", -1, 1, 1, 3, Q("255 mm")),
    Sketcher.Constraint("DistanceY", -1, 1, 2, 3, Q("160 mm")),
    Sketcher.Constraint("DistanceY", 4, 3, -1, 1, Q("80 mm")),
    Sketcher.Constraint("DistanceY", -1, 1, 6, 3, Q("40 mm")),
])
doc.recompute()
hole5 = body.newObject("PartDesign::Hole", "Hole004")
hole5.Profile = sketch16
hole5.ThreadType = "None"
hole5.Diameter = 5
hole5.DepthType = "Dimension"
hole5.Depth = 15
hole5.DrillPoint = "Angled"
hole5.DrillPointAngle = 118

# Sketch on XY plane
sketch17 = body.newObject("Sketcher::SketchObject", "Sketch016")
sketch17.AttachmentSupport = (doc.getObject("XY_Plane"), [""])
sketch17.MapMode = "FlatFace"
sketch17.addGeometry([
    Part.Circle(App.Vector(40, 150, 0), App.Vector(0, 0, 1), 2.5),
    Part.Circle(App.Vector(230, 150, 0), App.Vector(0, 0, 1), 2.5),
], False)
sketch17.addConstraint([
    Sketcher.Constraint("Equal", 0, 1),
    Sketcher.Constraint("Horizontal", 0, 3, 1, 3),
    Sketcher.Constraint("Diameter", 0, Q("5 mm")),
    Sketcher.Constraint("DistanceX", -1, 1, 0, 3, Q("40 mm")),
    Sketcher.Constraint("DistanceY", -1, 1, 0, 3, Q("150 mm")),
    Sketcher.Constraint("DistanceX", -1, 1, 1, 3, Q("230 mm")),
])
doc.recompute()
hole6 = body.newObject("PartDesign::Hole", "Hole005")
hole6.Profile = sketch17
hole6.ThreadType = "None"
hole6.Diameter = 5
hole6.DepthType = "Dimension"
hole6.Depth = 15
hole6.DrillPoint = "Angled"
hole6.DrillPointAngle = 118
hole6.Reversed = True

# Sketch on XY plane
sketch18 = body.newObject("Sketcher::SketchObject", "Sketch017")
sketch18.AttachmentSupport = (doc.getObject("XY_Plane"), [""])
sketch18.MapMode = "FlatFace"
sketch18.AttachmentOffset = App.Placement(App.Vector(0, 0, 15), App.Rotation())
sketch18.addGeometry([
    Part.Circle(App.Vector(123.5, 43, 0), App.Vector(0, 0, 1), 2.1),
    Part.Circle(App.Vector(143.5, 43, 0), App.Vector(0, 0, 1), 2.1),
    Part.Circle(App.Vector(143.5, 15, 0), App.Vector(0, 0, 1), 2.1),
    Part.Circle(App.Vector(123.5, 15, 0), App.Vector(0, 0, 1), 2.1),
], False)
sketch18.addConstraint([
    Sketcher.Constraint("Equal", 0, 1),
    Sketcher.Constraint("Equal", 1, 2),
    Sketcher.Constraint("Equal", 2, 3),
    Sketcher.Constraint("Horizontal", 0, 3, 1, 3),
    Sketcher.Constraint("Horizontal", 2, 3, 3, 3),
    Sketcher.Constraint("Vertical", 1, 3, 2, 3),
    Sketcher.Constraint("Vertical", 0, 3, 3, 3),
    Sketcher.Constraint("Diameter", 0, Q("4.2 mm")),
    Sketcher.Constraint("DistanceY", -1, 1, 0, 3, Q("43 mm")),
    Sketcher.Constraint("DistanceY", -1, 1, 2, 3, Q("15 mm")),
    Sketcher.Constraint("DistanceX", 0, 3, 1, 3, Q("20 mm")),
    Sketcher.Constraint("DistanceX", -1, 1, 0, 3, Q("123.5 mm")),
])
doc.recompute()
hole7 = body.newObject("PartDesign::Hole", "Hole006")
hole7.Profile = sketch18
hole7.ThreadType = "None"
hole7.Diameter = 4.2
hole7.DepthType = "Dimension"
hole7.Depth = 12.4
hole7.DrillPoint = "Angled"
hole7.DrillPointAngle = 118

# Sketch on XY plane
sketch19 = body.newObject("Sketcher::SketchObject", "Sketch018")
sketch19.AttachmentSupport = (doc.getObject("XY_Plane"), [""])
sketch19.MapMode = "FlatFace"
sketch19.AttachmentOffset = App.Placement(App.Vector(0, 0, 15), App.Rotation())
sketch19.addGeometry([
    Part.Circle(App.Vector(304, 240, 0), App.Vector(0, 0, 1), 3),
    Part.Circle(App.Vector(255, -40, 0), App.Vector(0, 0, 1), 3),
], False)
sketch19.addConstraint([
    Sketcher.Constraint("Equal", 0, 1),
    Sketcher.Constraint("Diameter", 0, Q("6 mm")),
    Sketcher.Constraint("DistanceX", -1, 1, 0, 3, Q("304 mm")),
    Sketcher.Constraint("DistanceY", -1, 1, 0, 3, Q("240 mm")),
    Sketcher.Constraint("DistanceX", -1, 1, 1, 3, Q("255 mm")),
    Sketcher.Constraint("DistanceY", 1, 3, -1, 1, Q("40 mm")),
])
pocket6 = body.newObject("PartDesign::Pocket", "Pocket005")
pocket6.Profile = sketch19
pocket6.Type = "ThroughAll"

doc.recompute()
